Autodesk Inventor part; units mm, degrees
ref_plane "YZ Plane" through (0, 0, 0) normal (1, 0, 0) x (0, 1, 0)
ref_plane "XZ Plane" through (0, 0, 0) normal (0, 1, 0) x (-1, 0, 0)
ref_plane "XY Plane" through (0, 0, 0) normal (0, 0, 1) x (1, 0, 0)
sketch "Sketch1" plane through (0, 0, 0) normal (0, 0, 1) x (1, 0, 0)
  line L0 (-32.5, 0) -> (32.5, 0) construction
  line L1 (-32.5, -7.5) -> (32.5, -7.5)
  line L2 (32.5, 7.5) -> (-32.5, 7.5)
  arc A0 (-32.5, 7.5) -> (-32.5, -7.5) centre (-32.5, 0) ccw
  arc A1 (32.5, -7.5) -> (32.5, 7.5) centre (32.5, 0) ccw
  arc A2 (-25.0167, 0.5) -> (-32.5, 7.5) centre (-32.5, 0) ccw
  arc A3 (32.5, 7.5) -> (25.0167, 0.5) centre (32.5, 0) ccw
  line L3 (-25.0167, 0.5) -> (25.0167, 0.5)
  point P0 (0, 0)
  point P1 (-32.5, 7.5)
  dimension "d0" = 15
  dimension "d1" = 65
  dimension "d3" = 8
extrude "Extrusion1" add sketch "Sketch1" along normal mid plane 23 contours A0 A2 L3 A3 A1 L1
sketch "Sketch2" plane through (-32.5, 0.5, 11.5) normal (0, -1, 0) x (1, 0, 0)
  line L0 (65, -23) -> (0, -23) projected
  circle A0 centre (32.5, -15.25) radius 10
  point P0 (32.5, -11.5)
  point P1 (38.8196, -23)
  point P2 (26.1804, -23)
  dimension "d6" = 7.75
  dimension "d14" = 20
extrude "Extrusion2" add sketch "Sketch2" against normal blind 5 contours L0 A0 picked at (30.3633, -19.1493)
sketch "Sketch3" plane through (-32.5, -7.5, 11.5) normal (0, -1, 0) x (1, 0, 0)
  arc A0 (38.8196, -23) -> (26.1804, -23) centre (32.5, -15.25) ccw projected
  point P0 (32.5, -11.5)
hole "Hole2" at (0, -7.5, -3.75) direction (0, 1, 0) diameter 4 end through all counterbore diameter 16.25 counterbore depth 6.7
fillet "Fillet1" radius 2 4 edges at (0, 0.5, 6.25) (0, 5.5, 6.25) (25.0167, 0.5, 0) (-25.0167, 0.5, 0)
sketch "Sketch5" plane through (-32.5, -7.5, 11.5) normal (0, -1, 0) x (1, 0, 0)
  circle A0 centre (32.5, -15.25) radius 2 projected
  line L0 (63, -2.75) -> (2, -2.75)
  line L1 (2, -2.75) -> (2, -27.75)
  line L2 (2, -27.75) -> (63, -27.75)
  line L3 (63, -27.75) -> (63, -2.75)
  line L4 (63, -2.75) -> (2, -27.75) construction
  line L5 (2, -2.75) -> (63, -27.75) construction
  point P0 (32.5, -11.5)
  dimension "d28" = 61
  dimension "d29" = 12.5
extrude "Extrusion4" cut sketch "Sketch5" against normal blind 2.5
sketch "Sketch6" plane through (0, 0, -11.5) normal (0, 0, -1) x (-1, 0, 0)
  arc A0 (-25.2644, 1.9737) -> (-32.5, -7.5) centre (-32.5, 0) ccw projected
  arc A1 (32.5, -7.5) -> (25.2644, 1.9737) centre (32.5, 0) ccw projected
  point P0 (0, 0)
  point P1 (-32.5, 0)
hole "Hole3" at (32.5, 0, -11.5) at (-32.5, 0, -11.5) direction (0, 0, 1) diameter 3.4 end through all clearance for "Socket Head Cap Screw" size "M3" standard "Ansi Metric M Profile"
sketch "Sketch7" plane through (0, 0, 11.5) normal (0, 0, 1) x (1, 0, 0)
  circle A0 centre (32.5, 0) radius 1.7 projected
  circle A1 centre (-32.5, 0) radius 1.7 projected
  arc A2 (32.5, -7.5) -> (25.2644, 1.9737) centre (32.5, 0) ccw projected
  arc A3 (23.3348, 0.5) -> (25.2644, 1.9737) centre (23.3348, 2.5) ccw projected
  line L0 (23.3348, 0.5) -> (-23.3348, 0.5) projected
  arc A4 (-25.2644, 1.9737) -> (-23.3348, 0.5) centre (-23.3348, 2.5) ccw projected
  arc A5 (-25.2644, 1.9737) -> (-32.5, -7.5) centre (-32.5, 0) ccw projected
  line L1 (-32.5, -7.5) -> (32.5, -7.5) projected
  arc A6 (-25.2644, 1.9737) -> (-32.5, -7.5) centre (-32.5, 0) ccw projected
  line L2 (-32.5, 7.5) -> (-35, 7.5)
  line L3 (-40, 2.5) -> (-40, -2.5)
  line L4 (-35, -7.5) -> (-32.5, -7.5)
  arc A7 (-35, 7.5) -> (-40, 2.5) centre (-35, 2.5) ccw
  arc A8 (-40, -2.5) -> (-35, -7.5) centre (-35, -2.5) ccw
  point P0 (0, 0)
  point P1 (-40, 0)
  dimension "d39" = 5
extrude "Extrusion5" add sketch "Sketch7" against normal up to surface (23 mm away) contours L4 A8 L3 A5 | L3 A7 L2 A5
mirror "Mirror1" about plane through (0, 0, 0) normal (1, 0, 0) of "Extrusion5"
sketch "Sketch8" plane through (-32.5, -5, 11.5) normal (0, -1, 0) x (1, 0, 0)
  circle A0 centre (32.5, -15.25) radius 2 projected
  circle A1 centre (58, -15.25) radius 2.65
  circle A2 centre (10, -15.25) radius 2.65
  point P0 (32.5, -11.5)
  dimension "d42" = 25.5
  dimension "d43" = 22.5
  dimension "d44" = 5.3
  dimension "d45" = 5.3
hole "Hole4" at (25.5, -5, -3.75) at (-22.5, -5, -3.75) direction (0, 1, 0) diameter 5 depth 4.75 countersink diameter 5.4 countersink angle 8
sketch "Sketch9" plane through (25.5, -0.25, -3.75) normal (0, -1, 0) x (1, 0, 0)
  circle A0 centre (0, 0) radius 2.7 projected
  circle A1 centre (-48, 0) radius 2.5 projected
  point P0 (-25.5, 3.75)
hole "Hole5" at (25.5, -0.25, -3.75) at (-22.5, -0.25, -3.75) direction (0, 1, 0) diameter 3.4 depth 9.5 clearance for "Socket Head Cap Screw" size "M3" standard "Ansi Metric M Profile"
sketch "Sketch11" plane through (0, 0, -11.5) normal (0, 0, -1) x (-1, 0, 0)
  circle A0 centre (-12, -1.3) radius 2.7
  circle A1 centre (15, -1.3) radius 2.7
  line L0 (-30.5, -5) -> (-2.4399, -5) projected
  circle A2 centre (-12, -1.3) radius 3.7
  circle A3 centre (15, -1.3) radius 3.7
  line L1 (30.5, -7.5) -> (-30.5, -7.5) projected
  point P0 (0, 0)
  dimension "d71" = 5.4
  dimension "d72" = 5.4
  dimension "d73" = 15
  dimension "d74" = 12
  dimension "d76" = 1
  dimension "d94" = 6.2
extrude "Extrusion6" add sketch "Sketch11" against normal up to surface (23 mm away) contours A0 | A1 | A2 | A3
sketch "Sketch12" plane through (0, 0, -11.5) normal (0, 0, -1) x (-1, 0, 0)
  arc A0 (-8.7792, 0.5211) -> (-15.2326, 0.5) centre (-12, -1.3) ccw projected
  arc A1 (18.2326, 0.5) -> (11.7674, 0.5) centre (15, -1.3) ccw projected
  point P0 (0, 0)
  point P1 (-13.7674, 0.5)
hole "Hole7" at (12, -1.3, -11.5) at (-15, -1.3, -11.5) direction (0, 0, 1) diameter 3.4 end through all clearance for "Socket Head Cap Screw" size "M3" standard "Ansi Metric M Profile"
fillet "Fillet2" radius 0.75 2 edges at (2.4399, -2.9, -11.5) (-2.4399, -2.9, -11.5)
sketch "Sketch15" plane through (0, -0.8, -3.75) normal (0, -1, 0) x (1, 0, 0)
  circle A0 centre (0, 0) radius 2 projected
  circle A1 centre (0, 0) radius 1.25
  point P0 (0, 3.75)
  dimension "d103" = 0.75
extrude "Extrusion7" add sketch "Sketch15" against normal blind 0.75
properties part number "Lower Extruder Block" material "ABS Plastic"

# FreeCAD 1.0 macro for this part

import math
import FreeCAD as App
import Part
import Sketcher


def edges_at(feature, points):
    """Names of the edges that pass closest to the given points."""
    edges = feature.Shape.Edges
    near = lambda p: min(range(len(edges)), key=lambda i: edges[i].distToShape(Part.Vertex(*p))[0])
    return sorted({f"Edge{near(p) + 1}" for p in points})

doc = App.newDocument("Part")
body = doc.addObject("PartDesign::Body", "Body")

# Sketch on XY plane
sketch1 = body.newObject("Sketcher::SketchObject", "Sketch")
sketch1.AttachmentSupport = (doc.getObject("XY_Plane"), [""])
sketch1.MapMode = "FlatFace"
sketch1.addGeometry(Part.ArcOfCircle(Part.Circle(App.Vector(-32.5, 0, 0), App.Vector(0, 0, 1), 7.5), math.radians(90), math.radians(270)), False)
sketch1.addGeometry(Part.LineSegment(App.Vector(-32.5, -7.5, 0), App.Vector(32.5, -7.5, 0)), False)
sketch1.addGeometry(Part.ArcOfCircle(Part.Circle(App.Vector(32.5, 0, 0), App.Vector(0, 0, 1), 7.5), math.radians(-90), math.radians(90)), False)
sketch1.addGeometry(Part.ArcOfCircle(Part.Circle(App.Vector(32.5, 0, 0), App.Vector(0, 0, 1), 7.5), math.radians(90), math.radians(176.177439)), False)
sketch1.addGeometry(Part.LineSegment(App.Vector(25.0167, 0.5, 0), App.Vector(-25.0167, 0.5, 0)), False)
sketch1.addGeometry(Part.ArcOfCircle(Part.Circle(App.Vector(-32.5, 0, 0), App.Vector(0, 0, 1), 7.5), math.radians(3.822561), math.radians(90)), False)
sketch1.addConstraint(Sketcher.Constraint("Tangent", 0, 2, 1, 1))
sketch1.addConstraint(Sketcher.Constraint("Tangent", 1, 2, 2, 1))
sketch1.addConstraint(Sketcher.Constraint("Tangent", 2, 2, 3, 1))
sketch1.addConstraint(Sketcher.Constraint("Coincident", 3, 2, 4, 1))
sketch1.addConstraint(Sketcher.Constraint("Coincident", 4, 2, 5, 1))
sketch1.addConstraint(Sketcher.Constraint("Tangent", 5, 2, 0, 1))
sketch1.addConstraint(Sketcher.Constraint("Horizontal", 1))
sketch1.addConstraint(Sketcher.Constraint("Horizontal", 4))
sketch1.addConstraint(Sketcher.Constraint("Equal", 0, 2))
sketch1.addConstraint(Sketcher.Constraint("Equal", 2, 3))
sketch1.addConstraint(Sketcher.Constraint("Equal", 3, 5))
sketch1.addConstraint(Sketcher.Constraint("Symmetric", 0, 3, 2, 3, -1, 1))
sketch1.addConstraint(Sketcher.Constraint("Vertical", 1, 2, 2, 2))
sketch1.addConstraint(Sketcher.Constraint("Vertical", 0, 2, 5, 2))
sketch1.addConstraint(Sketcher.Constraint("Radius", 0, 7.5))
sketch1.addConstraint(Sketcher.Constraint("DistanceX", 1, 1, 1, 2, 65.0))
sketch1.addConstraint(Sketcher.Constraint("DistanceY", 1, 2, 3, 2, 8.0))
pad1 = body.newObject("PartDesign::Pad", "Pad")
pad1.Profile = sketch1
pad1.Length = 23
pad1.Midplane = True

# Sketch on XZ plane
sketch2 = body.newObject("Sketcher::SketchObject", "Sketch001")
sketch2.AttachmentSupport = (doc.getObject("XZ_Plane"), [""])
sketch2.MapMode = "FlatFace"
sketch2.AttachmentOffset = App.Placement(App.Vector(0, 0, -0.5), App.Rotation())
sketch2.addGeometry(Part.LineSegment(App.Vector(-6.319612, -11.5, 0), App.Vector(6.319612, -11.5, 0)), False)
sketch2.addGeometry(Part.ArcOfCircle(Part.Circle(App.Vector(0, -3.75, 0), App.Vector(0, 0, 1), 10), math.radians(-50.805033), math.radians(230.805033)), False)
sketch2.addConstraint(Sketcher.Constraint("Coincident", 0, 1, 1, 2))
sketch2.addConstraint(Sketcher.Constraint("Coincident", 1, 1, 0, 2))
sketch2.addConstraint(Sketcher.Constraint("Horizontal", 0))
sketch2.addConstraint(Sketcher.Constraint("PointOnObject", 1, 3, -2))
sketch2.addConstraint(Sketcher.Constraint("Radius", 1, 10.0))
sketch2.addConstraint(Sketcher.Constraint("DistanceY", 0, 1, 1, 3, 7.75))
sketch2.addConstraint(Sketcher.Constraint("DistanceY", 0, 1, -1, 1, 11.5))
pad2 = body.newObject("PartDesign::Pad", "Pad001")
pad2.Profile = sketch2
pad2.Length = 5
pad2.Reversed = True

# Sketch on XZ plane
sketch3 = body.newObject("Sketcher::SketchObject", "Sketch002")
sketch3.AttachmentSupport = (doc.getObject("XZ_Plane"), [""])
sketch3.MapMode = "FlatFace"
sketch3.AttachmentOffset = App.Placement(App.Vector(0, 0, 7.5), App.Rotation())
sketch3.addGeometry(Part.Circle(App.Vector(0, -3.75, 0), App.Vector(0, 0, 1), 2), False)
sketch3.addConstraint(Sketcher.Constraint("PointOnObject", 0, 3, -2))
sketch3.addConstraint(Sketcher.Constraint("Diameter", 0, 4.0))
sketch3.addConstraint(Sketcher.Constraint("DistanceY", 0, 3, -1, 1, 3.75))
doc.recompute()
hole = body.newObject("PartDesign::Hole", "Hole")
hole.Profile = sketch3
hole.ThreadType = "None"
hole.Diameter = 4
hole.DepthType = "ThroughAll"
hole.HoleCutType = "Counterbore"
hole.HoleCutDiameter = 16.25
hole.HoleCutDepth = 6.7
doc.recompute()

fillet = body.newObject("PartDesign::Fillet", "Fillet")
fillet.Base = (hole, edges_at(hole, [
    (0, 0.5, 6.25),
    (0, 5.5, 6.25),
    (25.017, 0.5, 0),
    (-25.017, 0.5, 0),
]))
fillet.Radius = 2

# Sketch on XZ plane
sketch4 = body.newObject("Sketcher::SketchObject", "Sketch003")
sketch4.AttachmentSupport = (doc.getObject("XZ_Plane"), [""])
sketch4.MapMode = "FlatFace"
sketch4.AttachmentOffset = App.Placement(App.Vector(0, 0, 7.5), App.Rotation())
sketch4.addGeometry(Part.LineSegment(App.Vector(30.5, -16.25, 0), App.Vector(30.5, 8.75, 0)), False)
sketch4.addGeometry(Part.LineSegment(App.Vector(30.5, 8.75, 0), App.Vector(-30.5, 8.75, 0)), False)
sketch4.addGeometry(Part.LineSegment(App.Vector(-30.5, 8.75, 0), App.Vector(-30.5, -16.25, 0)), False)
sketch4.addGeometry(Part.LineSegment(App.Vector(-30.5, -16.25, 0), App.Vector(30.5, -16.25, 0)), False)
sketch4.addGeometry(Part.Circle(App.Vector(0, -3.75, 0), App.Vector(0, 0, 1), 2), False)
sketch4.addConstraint(Sketcher.Constraint("Coincident", 0, 2, 1, 1))
sketch4.addConstraint(Sketcher.Constraint("Coincident", 1, 2, 2, 1))
sketch4.addConstraint(Sketcher.Constraint("Coincident", 2, 2, 3, 1))
sketch4.addConstraint(Sketcher.Constraint("Coincident", 3, 2, 0, 1))
sketch4.addConstraint(Sketcher.Constraint("Vertical", 0))
sketch4.addConstraint(Sketcher.Constraint("Horizontal", 1))
sketch4.addConstraint(Sketcher.Constraint("Vertical", 2))
sketch4.addConstraint(Sketcher.Constraint("Horizontal", 3))
sketch4.addConstraint(Sketcher.Constraint("PointOnObject", 4, 3, -2))
sketch4.addConstraint(Sketcher.Constraint("DistanceX", 1, 2, 1, 1, 61.0))
sketch4.addConstraint(Sketcher.Constraint("Diameter", 4, 4.0))
sketch4.addConstraint(Sketcher.Constraint("DistanceY", 4, 3, 0, 2, 12.5))
sketch4.addConstraint(Sketcher.Constraint("DistanceY", 2, 2, 4, 3, 12.5))
sketch4.addConstraint(Sketcher.Constraint("DistanceX", -1, 1, 0, 2, 30.5))
sketch4.addConstraint(Sketcher.Constraint("DistanceY", 4, 3, -1, 1, 3.75))
pocket1 = body.newObject("PartDesign::Pocket", "Pocket")
pocket1.Profile = sketch4
pocket1.Length = 2.5

# Sketch on XY plane
sketch5 = body.newObject("Sketcher::SketchObject", "Sketch004")
sketch5.AttachmentSupport = (doc.getObject("XY_Plane"), [""])
sketch5.MapMode = "FlatFace"
sketch5.AttachmentOffset = App.Placement(App.Vector(0, 0, -11.5), App.Rotation())
sketch5.addGeometry(Part.Circle(App.Vector(32.5, 0, 0), App.Vector(0, 0, 1), 1.7), False)
sketch5.addGeometry(Part.Circle(App.Vector(-32.5, 0, 0), App.Vector(0, 0, 1), 1.7), False)
sketch5.addConstraint(Sketcher.Constraint("Equal", 0, 1))
sketch5.addConstraint(Sketcher.Constraint("Symmetric", 0, 3, 1, 3, -1, 1))
sketch5.addConstraint(Sketcher.Constraint("PointOnObject", 0, 3, -1))
sketch5.addConstraint(Sketcher.Constraint("Diameter", 0, 3.4))
sketch5.addConstraint(Sketcher.Constraint("DistanceX", 1, 3, 0, 3, 65.0))
doc.recompute()
hole2 = body.newObject("PartDesign::Hole", "Hole001")
hole2.Profile = sketch5
hole2.ThreadType = "None"
hole2.Diameter = 3.4
hole2.DepthType = "ThroughAll"
hole2.Reversed = True

# Sketch on XY plane
sketch6 = body.newObject("Sketcher::SketchObject", "Sketch005")
sketch6.AttachmentSupport = (doc.getObject("XY_Plane"), [""])
sketch6.MapMode = "FlatFace"
sketch6.AttachmentOffset = App.Placement(App.Vector(0, 0, 11.5), App.Rotation())
sketch6.addGeometry(Part.LineSegment(App.Vector(-35, -7.5, 0), App.Vector(-32.5, -7.5, 0)), False)
sketch6.addGeometry(Part.ArcOfCircle(Part.Circle(App.Vector(-32.5, 0, 0), App.Vector(0, 0, 1), 7.49996), math.radians(-179.999789), math.radians(-90)), False)
sketch6.addGeometry(Part.LineSegment(App.Vector(-40, -0.000028, 0), App.Vector(-40, -2.5, 0)), False)
sketch6.addGeometry(Part.ArcOfCircle(Part.Circle(App.Vector(-35, -2.5, 0), App.Vector(0, 0, 1), 5), math.radians(180), math.radians(270)), False)
sketch6.addGeometry(Part.LineSegment(App.Vector(-40, 2.5, 0), App.Vector(-40, -0.000028, 0)), False)
sketch6.addGeometry(Part.ArcOfCircle(Part.Circle(App.Vector(-32.5, 0, 0), App.Vector(0, 0, 1), 7.49996), math.radians(90), math.radians(180.000211)), False)
sketch6.addGeometry(Part.LineSegment(App.Vector(-32.5, 7.5, 0), App.Vector(-35, 7.5, 0)), False)
sketch6.addGeometry(Part.ArcOfCircle(Part.Circle(App.Vector(-35, 2.5, 0), App.Vector(0, 0, 1), 5), math.radians(90), math.radians(180)), False)
sketch6.addConstraint(Sketcher.Constraint("Tangent", 0, 2, 1, 2))
sketch6.addConstraint(Sketcher.Constraint("Tangent", 1, 1, 2, 1))
sketch6.addConstraint(Sketcher.Constraint("Tangent", 2, 2, 3, 1))
sketch6.addConstraint(Sketcher.Constraint("Tangent", 3, 2, 0, 1))
sketch6.addConstraint(Sketcher.Constraint("Tangent", 4, 2, 5, 2))
sketch6.addConstraint(Sketcher.Constraint("Tangent", 5, 1, 6, 1))
sketch6.addConstraint(Sketcher.Constraint("Tangent", 6, 2, 7, 1))
sketch6.addConstraint(Sketcher.Constraint("Tangent", 7, 2, 4, 1))
sketch6.addConstraint(Sketcher.Constraint("Horizontal", 0))
sketch6.addConstraint(Sketcher.Constraint("Vertical", 2))
sketch6.addConstraint(Sketcher.Constraint("Vertical", 4))
sketch6.addConstraint(Sketcher.Constraint("Horizontal", 6))
sketch6.addConstraint(Sketcher.Constraint("Coincident", 5, 3, 1, 3))
sketch6.addConstraint(Sketcher.Constraint("Equal", 1, 5))
sketch6.addConstraint(Sketcher.Constraint("Equal", 3, 7))
sketch6.addConstraint(Sketcher.Constraint("PointOnObject", 1, 3, -1))
sketch6.addConstraint(Sketcher.Constraint("Radius", 3, 5.0))
sketch6.addConstraint(Sketcher.Constraint("DistanceY", 3, 3, 7, 3, 5.0))
sketch6.addConstraint(Sketcher.Constraint("DistanceX", 3, 3, -1, 1, 35.0))
pad3 = body.newObject("PartDesign::Pad", "Pad002")
pad3.Profile = sketch6
pad3.Length = 23
pad3.Reversed = True
doc.recompute()

mirrored = body.newObject("PartDesign::Mirrored", "Mirrored")
mirrored.Originals = [pad3]
mirrored.MirrorPlane = (doc.getObject("YZ_Plane"), [""])
body.Tip = mirrored

# Sketch on XZ plane
sketch7 = body.newObject("Sketcher::SketchObject", "Sketch006")
sketch7.AttachmentSupport = (doc.getObject("XZ_Plane"), [""])
sketch7.MapMode = "FlatFace"
sketch7.AttachmentOffset = App.Placement(App.Vector(0, 0, 5), App.Rotation())
sketch7.addGeometry(Part.Circle(App.Vector(25.5, -3.75, 0), App.Vector(0, 0, 1), 2.5), False)
sketch7.addGeometry(Part.Circle(App.Vector(-22.5, -3.75, 0), App.Vector(0, 0, 1), 2.5), False)
sketch7.addConstraint(Sketcher.Constraint("Equal", 0, 1))
sketch7.addConstraint(Sketcher.Constraint("Horizontal", 0, 3, 1, 3))
sketch7.addConstraint(Sketcher.Constraint("Diameter", 0, 5.0))
sketch7.addConstraint(Sketcher.Constraint("DistanceX", 1, 3, 0, 3, 48.0))
sketch7.addConstraint(Sketcher.Constraint("DistanceX", -1, 1, 0, 3, 25.5))
sketch7.addConstraint(Sketcher.Constraint("DistanceY", 0, 3, -1, 1, 3.75))
doc.recompute()
hole3 = body.newObject("PartDesign::Hole", "Hole002")
hole3.Profile = sketch7
hole3.ThreadType = "None"
hole3.Diameter = 5
hole3.DepthType = "Dimension"
hole3.Depth = 4.75
hole3.DrillPoint = "Flat"
hole3.HoleCutType = "Countersink"
hole3.HoleCutDiameter = 5.4
hole3.HoleCutCountersinkAngle = 8

# Sketch on XZ plane
sketch8 = body.newObject("Sketcher::SketchObject", "Sketch007")
sketch8.AttachmentSupport = (doc.getObject("XZ_Plane"), [""])
sketch8.MapMode = "FlatFace"
sketch8.AttachmentOffset = App.Placement(App.Vector(0, 0, 0.25), App.Rotation())
sketch8.addGeometry(Part.Circle(App.Vector(25.5, -3.75, 0), App.Vector(0, 0, 1), 1.7), False)
sketch8.addGeometry(Part.Circle(App.Vector(-22.5, -3.75, 0), App.Vector(0, 0, 1), 1.7), False)
sketch8.addConstraint(Sketcher.Constraint("Equal", 0, 1))
sketch8.addConstraint(Sketcher.Constraint("Horizontal", 0, 3, 1, 3))
sketch8.addConstraint(Sketcher.Constraint("Diameter", 0, 3.4))
sketch8.addConstraint(Sketcher.Constraint("DistanceX", 1, 3, 0, 3, 48.0))
sketch8.addConstraint(Sketcher.Constraint("DistanceX", -1, 1, 0, 3, 25.5))
sketch8.addConstraint(Sketcher.Constraint("DistanceY", 0, 3, -1, 1, 3.75))
doc.recompute()
hole4 = body.newObject("PartDesign::Hole", "Hole003")
hole4.Profile = sketch8
hole4.ThreadType = "None"
hole4.Diameter = 3.4
hole4.DepthType = "Dimension"
hole4.Depth = 9.5
hole4.DrillPoint = "Flat"

# Sketch on XY plane
sketch9 = body.newObject("Sketcher::SketchObject", "Sketch008")
sketch9.AttachmentSupport = (doc.getObject("XY_Plane"), [""])
sketch9.MapMode = "FlatFace"
sketch9.AttachmentOffset = App.Placement(App.Vector(0, 0, -11.5), App.Rotation())
sketch9.addGeometry(Part.Circle(App.Vector(12, -1.3, 0), App.Vector(0, 0, 1), 3.7), False)
sketch9.addGeometry(Part.Circle(App.Vector(-15, -1.3, 0), App.Vector(0, 0, 1), 3.7), False)
sketch9.addConstraint(Sketcher.Constraint("Equal", 0, 1))
sketch9.addConstraint(Sketcher.Constraint("Horizontal", 0, 3, 1, 3))
sketch9.addConstraint(Sketcher.Constraint("DistanceX", -1, 1, 0, 3, 12.0))
sketch9.addConstraint(Sketcher.Constraint("DistanceX", 1, 3, -1, 1, 15.0))
sketch9.addConstraint(Sketcher.Constraint("Diameter", 0, 7.4))
sketch9.addConstraint(Sketcher.Constraint("DistanceY", 0, 3, -1, 1, 1.3))
pad4 = body.newObject("PartDesign::Pad", "Pad003")
pad4.Profile = sketch9
pad4.Length = 23

# Sketch on XY plane
sketch10 = body.newObject("Sketcher::SketchObject", "Sketch009")
sketch10.AttachmentSupport = (doc.getObject("XY_Plane"), [""])
sketch10.MapMode = "FlatFace"
sketch10.AttachmentOffset = App.Placement(App.Vector(0, 0, -11.5), App.Rotation())
sketch10.addGeometry(Part.Circle(App.Vector(12, -1.3, 0), App.Vector(0, 0, 1), 1.7), False)
sketch10.addGeometry(Part.Circle(App.Vector(-15, -1.3, 0), App.Vector(0, 0, 1), 1.7), False)
sketch10.addConstraint(Sketcher.Constraint("Equal", 0, 1))
sketch10.addConstraint(Sketcher.Constraint("Horizontal", 0, 3, 1, 3))
sketch10.addConstraint(Sketcher.Constraint("Diameter", 0, 3.4))
sketch10.addConstraint(Sketcher.Constraint("DistanceX", -1, 1, 0, 3, 12.0))
sketch10.addConstraint(Sketcher.Constraint("DistanceX", 1, 3, -1, 1, 15.0))
sketch10.addConstraint(Sketcher.Constraint("DistanceY", 0, 3, -1, 1, 1.3))
doc.recompute()
hole5 = body.newObject("PartDesign::Hole", "Hole004")
hole5.Profile = sketch10
hole5.ThreadType = "None"
hole5.Diameter = 3.4
hole5.DepthType = "ThroughAll"
hole5.Reversed = True
doc.recompute()

fillet2 = body.newObject("PartDesign::Fillet", "Fillet001")
fillet2.Base = (hole5, edges_at(hole5, [(2.44, -2.9, -11.5), (-2.44, -2.9, -11.5)]))
fillet2.Radius = 0.75

# Sketch on XZ plane
sketch11 = body.newObject("Sketcher::SketchObject", "Sketch010")
sketch11.AttachmentSupport = (doc.getObject("XZ_Plane"), [""])
sketch11.MapMode = "FlatFace"
sketch11.AttachmentOffset = App.Placement(App.Vector(0, 0, 0.8), App.Rotation())
sketch11.addGeometry(Part.Circle(App.Vector(0, -3.75, 0), App.Vector(0, 0, 1), 2), False)
sketch11.addGeometry(Part.Circle(App.Vector(0, -3.75, 0), App.Vector(0, 0, 1), 1.25), False)
sketch11.addConstraint(Sketcher.Constraint("Coincident", 1, 3, 0, 3))
sketch11.addConstraint(Sketcher.Constraint("PointOnObject", 0, 3, -2))
sketch11.addConstraint(Sketcher.Constraint("Diameter", 0, 4.0))
sketch11.addConstraint(Sketcher.Constraint("Diameter", 1, 2.5))
sketch11.addConstraint(Sketcher.Constraint("DistanceY", 0, 3, -1, 1, 3.75))
pad5 = body.newObject("PartDesign::Pad", "Pad004")
pad5.Profile = sketch11
pad5.Length = 0.75
pad5.Reversed = True

doc.recompute()
